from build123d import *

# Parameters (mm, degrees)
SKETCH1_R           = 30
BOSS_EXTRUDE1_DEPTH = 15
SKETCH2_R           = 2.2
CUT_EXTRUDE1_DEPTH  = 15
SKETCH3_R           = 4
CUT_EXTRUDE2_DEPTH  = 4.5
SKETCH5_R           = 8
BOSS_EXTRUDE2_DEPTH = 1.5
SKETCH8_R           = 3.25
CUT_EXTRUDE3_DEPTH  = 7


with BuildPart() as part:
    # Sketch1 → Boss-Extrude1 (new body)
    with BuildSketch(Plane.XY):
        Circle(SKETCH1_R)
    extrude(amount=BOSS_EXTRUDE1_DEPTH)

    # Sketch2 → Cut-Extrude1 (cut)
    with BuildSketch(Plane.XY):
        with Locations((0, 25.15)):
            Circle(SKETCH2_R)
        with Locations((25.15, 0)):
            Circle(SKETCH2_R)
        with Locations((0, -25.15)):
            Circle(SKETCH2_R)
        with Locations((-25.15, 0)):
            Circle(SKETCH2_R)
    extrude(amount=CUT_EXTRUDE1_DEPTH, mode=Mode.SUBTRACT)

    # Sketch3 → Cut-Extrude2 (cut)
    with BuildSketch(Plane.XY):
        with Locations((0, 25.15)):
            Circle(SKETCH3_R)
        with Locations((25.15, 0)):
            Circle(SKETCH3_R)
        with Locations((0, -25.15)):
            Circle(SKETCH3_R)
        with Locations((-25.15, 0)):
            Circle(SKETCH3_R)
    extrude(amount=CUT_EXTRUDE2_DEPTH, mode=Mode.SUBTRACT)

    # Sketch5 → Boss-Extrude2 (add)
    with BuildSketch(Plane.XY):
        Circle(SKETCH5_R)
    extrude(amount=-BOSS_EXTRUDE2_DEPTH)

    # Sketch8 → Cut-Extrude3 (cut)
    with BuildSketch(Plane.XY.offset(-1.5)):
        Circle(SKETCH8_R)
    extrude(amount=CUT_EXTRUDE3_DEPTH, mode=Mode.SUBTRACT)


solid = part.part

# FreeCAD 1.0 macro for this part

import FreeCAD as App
import Part
import Sketcher

doc = App.newDocument("Part")
body = doc.addObject("PartDesign::Body", "Body")

# Sketch on XY plane
sketch1 = body.newObject("Sketcher::SketchObject", "Sketch")
sketch1.AttachmentSupport = (doc.getObject("XY_Plane"), [""])
sketch1.MapMode = "FlatFace"
sketch1.addGeometry(Part.Circle(App.Vector(0, 0, 0), App.Vector(0, 0, 1), 30), False)
sketch1.addConstraint(Sketcher.Constraint("Coincident", 0, 3, -1, 1))
sketch1.addConstraint(Sketcher.Constraint("Diameter", 0, 60.0))
pad1 = body.newObject("PartDesign::Pad", "Pad")
pad1.Profile = sketch1
pad1.Length = 15

# Sketch on XY plane
sketch2 = body.newObject("Sketcher::SketchObject", "Sketch001")
sketch2.AttachmentSupport = (doc.getObject("XY_Plane"), [""])
sketch2.MapMode = "FlatFace"
sketch2.addGeometry(Part.Circle(App.Vector(0, 25.1, 0), App.Vector(0, 0, 1), 2.2), False)
sketch2.addGeometry(Part.Circle(App.Vector(25.1, 0, 0), App.Vector(0, 0, 1), 2.2), False)
sketch2.addGeometry(Part.Circle(App.Vector(0, -25.1, 0), App.Vector(0, 0, 1), 2.2), False)
sketch2.addGeometry(Part.Circle(App.Vector(-25.1, 0, 0), App.Vector(0, 0, 1), 2.2), False)
sketch2.addConstraint(Sketcher.Constraint("Equal", 0, 1))
sketch2.addConstraint(Sketcher.Constraint("Equal", 1, 2))
sketch2.addConstraint(Sketcher.Constraint("Equal", 2, 3))
sketch2.addConstraint(Sketcher.Constraint("Symmetric", 0, 3, 2, 3, -1, 1))
sketch2.addConstraint(Sketcher.Constraint("Symmetric", 1, 3, 3, 3, -1, 1))
sketch2.addConstraint(Sketcher.Constraint("PointOnObject", 0, 3, -2))
sketch2.addConstraint(Sketcher.Constraint("PointOnObject", 1, 3, -1))
sketch2.addConstraint(Sketcher.Constraint("Diameter", 0, 4.4))
sketch2.addConstraint(Sketcher.Constraint("DistanceY", 2, 3, 0, 3, 50.3))
sketch2.addConstraint(Sketcher.Constraint("DistanceX", 3, 3, 1, 3, 50.3))
pocket1 = body.newObject("PartDesign::Pocket", "Pocket")
pocket1.Profile = sketch2
pocket1.Length = 15
pocket1.Reversed = True

# Sketch on XY plane
sketch3 = body.newObject("Sketcher::SketchObject", "Sketch002")
sketch3.AttachmentSupport = (doc.getObject("XY_Plane"), [""])
sketch3.MapMode = "FlatFace"
sketch3.addGeometry(Part.Circle(App.Vector(0, 25.1, 0), App.Vector(0, 0, 1), 4), False)
sketch3.addGeometry(Part.Circle(App.Vector(25.1, 0, 0), App.Vector(0, 0, 1), 4), False)
sketch3.addGeometry(Part.Circle(App.Vector(0, -25.1, 0), App.Vector(0, 0, 1), 4), False)
sketch3.addGeometry(Part.Circle(App.Vector(-25.1, 0, 0), App.Vector(0, 0, 1), 4), False)
sketch3.addConstraint(Sketcher.Constraint("Equal", 0, 1))
sketch3.addConstraint(Sketcher.Constraint("Equal", 1, 2))
sketch3.addConstraint(Sketcher.Constraint("Equal", 2, 3))
sketch3.addConstraint(Sketcher.Constraint("Symmetric", 0, 3, 2, 3, -1, 1))
sketch3.addConstraint(Sketcher.Constraint("Symmetric", 1, 3, 3, 3, -1, 1))
sketch3.addConstraint(Sketcher.Constraint("PointOnObject", 0, 3, -2))
sketch3.addConstraint(Sketcher.Constraint("PointOnObject", 1, 3, -1))
sketch3.addConstraint(Sketcher.Constraint("Diameter", 0, 8.0))
sketch3.addConstraint(Sketcher.Constraint("DistanceY", 2, 3, 0, 3, 50.3))
sketch3.addConstraint(Sketcher.Constraint("DistanceX", 3, 3, 1, 3, 50.3))
pocket2 = body.newObject("PartDesign::Pocket", "Pocket001")
pocket2.Profile = sketch3
pocket2.Length = 4.5
pocket2.Reversed = True

# Sketch on XY plane
sketch4 = body.newObject("Sketcher::SketchObject", "Sketch003")
sketch4.AttachmentSupport = (doc.getObject("XY_Plane"), [""])
sketch4.MapMode = "FlatFace"
sketch4.addGeometry(Part.Circle(App.Vector(0, 0, 0), App.Vector(0, 0, 1), 8), False)
sketch4.addConstraint(Sketcher.Constraint("Coincident", 0, 3, -1, 1))
sketch4.addConstraint(Sketcher.Constraint("Diameter", 0, 16.0))
pad2 = body.newObject("PartDesign::Pad", "Pad001")
pad2.Profile = sketch4
pad2.Length = 1.5
pad2.Reversed = True

# Sketch on XY plane
sketch5 = body.newObject("Sketcher::SketchObject", "Sketch004")
sketch5.AttachmentSupport = (doc.getObject("XY_Plane"), [""])
sketch5.MapMode = "FlatFace"
sketch5.AttachmentOffset = App.Placement(App.Vector(0, 0, -1.5), App.Rotation())
sketch5.addGeometry(Part.Circle(App.Vector(0, 0, 0), App.Vector(0, 0, 1), 3.2), False)
sketch5.addConstraint(Sketcher.Constraint("Coincident", 0, 3, -1, 1))
sketch5.addConstraint(Sketcher.Constraint("Diameter", 0, 6.5))
pocket3 = body.newObject("PartDesign::Pocket", "Pocket002")
pocket3.Profile = sketch5
pocket3.Length = 7
pocket3.Reversed = True

doc.recompute()
